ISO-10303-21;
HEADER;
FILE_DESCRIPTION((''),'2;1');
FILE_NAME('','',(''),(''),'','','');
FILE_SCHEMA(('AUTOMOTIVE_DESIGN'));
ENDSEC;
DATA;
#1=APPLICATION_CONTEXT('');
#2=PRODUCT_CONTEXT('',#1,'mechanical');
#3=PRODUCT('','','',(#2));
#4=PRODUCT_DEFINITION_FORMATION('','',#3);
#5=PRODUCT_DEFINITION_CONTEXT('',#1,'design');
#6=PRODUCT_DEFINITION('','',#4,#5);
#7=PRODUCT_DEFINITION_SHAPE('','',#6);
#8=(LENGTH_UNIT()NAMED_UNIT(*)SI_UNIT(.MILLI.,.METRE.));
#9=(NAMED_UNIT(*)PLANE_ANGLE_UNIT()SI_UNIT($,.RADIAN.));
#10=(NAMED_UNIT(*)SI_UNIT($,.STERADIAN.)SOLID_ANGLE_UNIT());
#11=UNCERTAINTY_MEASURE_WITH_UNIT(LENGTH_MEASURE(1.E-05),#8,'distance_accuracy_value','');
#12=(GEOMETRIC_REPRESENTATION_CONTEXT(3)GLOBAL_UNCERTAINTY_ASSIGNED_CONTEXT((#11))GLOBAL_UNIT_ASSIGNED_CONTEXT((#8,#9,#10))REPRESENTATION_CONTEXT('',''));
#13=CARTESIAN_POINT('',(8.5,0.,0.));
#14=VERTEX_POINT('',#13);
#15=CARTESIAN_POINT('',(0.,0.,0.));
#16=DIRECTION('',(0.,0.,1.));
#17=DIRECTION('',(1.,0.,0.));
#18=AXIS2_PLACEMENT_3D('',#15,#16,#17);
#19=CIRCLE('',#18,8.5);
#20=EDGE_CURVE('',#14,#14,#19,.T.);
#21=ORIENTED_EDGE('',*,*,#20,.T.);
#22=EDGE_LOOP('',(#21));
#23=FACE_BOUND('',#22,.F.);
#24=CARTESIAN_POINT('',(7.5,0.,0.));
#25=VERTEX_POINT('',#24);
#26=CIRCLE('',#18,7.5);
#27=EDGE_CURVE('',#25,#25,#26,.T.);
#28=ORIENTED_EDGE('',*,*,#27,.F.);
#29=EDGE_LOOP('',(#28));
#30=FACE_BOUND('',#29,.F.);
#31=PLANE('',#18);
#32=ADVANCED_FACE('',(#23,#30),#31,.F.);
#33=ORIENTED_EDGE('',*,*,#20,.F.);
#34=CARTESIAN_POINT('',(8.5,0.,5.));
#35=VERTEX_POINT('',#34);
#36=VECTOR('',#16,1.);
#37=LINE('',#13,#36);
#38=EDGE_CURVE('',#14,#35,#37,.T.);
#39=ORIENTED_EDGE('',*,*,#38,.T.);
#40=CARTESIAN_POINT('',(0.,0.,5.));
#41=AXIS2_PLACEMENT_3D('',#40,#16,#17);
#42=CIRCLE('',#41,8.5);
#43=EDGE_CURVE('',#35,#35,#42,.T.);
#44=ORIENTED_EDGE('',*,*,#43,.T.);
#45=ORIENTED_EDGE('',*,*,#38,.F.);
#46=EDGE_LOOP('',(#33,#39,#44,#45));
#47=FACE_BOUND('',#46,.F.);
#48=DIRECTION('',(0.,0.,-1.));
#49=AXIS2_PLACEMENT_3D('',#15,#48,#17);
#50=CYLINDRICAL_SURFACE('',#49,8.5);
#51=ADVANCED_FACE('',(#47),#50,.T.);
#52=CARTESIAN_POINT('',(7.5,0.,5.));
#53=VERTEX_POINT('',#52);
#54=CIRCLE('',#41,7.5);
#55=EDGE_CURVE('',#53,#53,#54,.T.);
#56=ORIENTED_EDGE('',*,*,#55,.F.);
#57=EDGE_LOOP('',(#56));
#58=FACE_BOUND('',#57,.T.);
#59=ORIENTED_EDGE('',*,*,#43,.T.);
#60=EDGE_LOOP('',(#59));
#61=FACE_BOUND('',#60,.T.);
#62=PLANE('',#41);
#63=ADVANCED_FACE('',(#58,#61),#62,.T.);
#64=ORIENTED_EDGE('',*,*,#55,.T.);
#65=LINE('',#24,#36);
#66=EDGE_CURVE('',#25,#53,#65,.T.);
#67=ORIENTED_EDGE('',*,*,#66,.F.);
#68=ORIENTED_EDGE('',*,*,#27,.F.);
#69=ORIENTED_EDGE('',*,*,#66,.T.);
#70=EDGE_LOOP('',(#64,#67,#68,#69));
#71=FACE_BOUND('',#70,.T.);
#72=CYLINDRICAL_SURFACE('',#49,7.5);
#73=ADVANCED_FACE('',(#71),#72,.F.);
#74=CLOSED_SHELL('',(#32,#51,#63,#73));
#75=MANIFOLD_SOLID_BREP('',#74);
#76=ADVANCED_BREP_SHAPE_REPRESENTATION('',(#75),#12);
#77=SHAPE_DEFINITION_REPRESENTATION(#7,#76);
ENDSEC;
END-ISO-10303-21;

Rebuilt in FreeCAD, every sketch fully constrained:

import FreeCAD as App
import Part
import Sketcher

doc = App.newDocument("Part")
body = doc.addObject("PartDesign::Body", "Body")

sketch1 = doc.addObject("Sketcher::SketchObject", "Sketch")
body.addObject(sketch1)
sketch1.AttachmentSupport = (doc.XY_Plane, [""])
sketch1.MapMode = "FlatFace"
sketch1.addGeometry([
    Part.Circle(App.Vector(0, 0, 0), App.Vector(0, 0, 1), 8.5),
    Part.Circle(App.Vector(0, 0, 0), App.Vector(0, 0, 1), 7.5),
], False)
sketch1.addConstraint([
    Sketcher.Constraint("Coincident", 0, 3, -1, 1),
    Sketcher.Constraint("Coincident", 1, 3, -1, 1),
    Sketcher.Constraint("Diameter", 0, 17.0),
    Sketcher.Constraint("Diameter", 1, 15.0),
])
pad1 = doc.addObject("PartDesign::Pad", "Pad")
body.addObject(pad1)
pad1.Profile = sketch1
pad1.Length = 5

doc.recompute()
